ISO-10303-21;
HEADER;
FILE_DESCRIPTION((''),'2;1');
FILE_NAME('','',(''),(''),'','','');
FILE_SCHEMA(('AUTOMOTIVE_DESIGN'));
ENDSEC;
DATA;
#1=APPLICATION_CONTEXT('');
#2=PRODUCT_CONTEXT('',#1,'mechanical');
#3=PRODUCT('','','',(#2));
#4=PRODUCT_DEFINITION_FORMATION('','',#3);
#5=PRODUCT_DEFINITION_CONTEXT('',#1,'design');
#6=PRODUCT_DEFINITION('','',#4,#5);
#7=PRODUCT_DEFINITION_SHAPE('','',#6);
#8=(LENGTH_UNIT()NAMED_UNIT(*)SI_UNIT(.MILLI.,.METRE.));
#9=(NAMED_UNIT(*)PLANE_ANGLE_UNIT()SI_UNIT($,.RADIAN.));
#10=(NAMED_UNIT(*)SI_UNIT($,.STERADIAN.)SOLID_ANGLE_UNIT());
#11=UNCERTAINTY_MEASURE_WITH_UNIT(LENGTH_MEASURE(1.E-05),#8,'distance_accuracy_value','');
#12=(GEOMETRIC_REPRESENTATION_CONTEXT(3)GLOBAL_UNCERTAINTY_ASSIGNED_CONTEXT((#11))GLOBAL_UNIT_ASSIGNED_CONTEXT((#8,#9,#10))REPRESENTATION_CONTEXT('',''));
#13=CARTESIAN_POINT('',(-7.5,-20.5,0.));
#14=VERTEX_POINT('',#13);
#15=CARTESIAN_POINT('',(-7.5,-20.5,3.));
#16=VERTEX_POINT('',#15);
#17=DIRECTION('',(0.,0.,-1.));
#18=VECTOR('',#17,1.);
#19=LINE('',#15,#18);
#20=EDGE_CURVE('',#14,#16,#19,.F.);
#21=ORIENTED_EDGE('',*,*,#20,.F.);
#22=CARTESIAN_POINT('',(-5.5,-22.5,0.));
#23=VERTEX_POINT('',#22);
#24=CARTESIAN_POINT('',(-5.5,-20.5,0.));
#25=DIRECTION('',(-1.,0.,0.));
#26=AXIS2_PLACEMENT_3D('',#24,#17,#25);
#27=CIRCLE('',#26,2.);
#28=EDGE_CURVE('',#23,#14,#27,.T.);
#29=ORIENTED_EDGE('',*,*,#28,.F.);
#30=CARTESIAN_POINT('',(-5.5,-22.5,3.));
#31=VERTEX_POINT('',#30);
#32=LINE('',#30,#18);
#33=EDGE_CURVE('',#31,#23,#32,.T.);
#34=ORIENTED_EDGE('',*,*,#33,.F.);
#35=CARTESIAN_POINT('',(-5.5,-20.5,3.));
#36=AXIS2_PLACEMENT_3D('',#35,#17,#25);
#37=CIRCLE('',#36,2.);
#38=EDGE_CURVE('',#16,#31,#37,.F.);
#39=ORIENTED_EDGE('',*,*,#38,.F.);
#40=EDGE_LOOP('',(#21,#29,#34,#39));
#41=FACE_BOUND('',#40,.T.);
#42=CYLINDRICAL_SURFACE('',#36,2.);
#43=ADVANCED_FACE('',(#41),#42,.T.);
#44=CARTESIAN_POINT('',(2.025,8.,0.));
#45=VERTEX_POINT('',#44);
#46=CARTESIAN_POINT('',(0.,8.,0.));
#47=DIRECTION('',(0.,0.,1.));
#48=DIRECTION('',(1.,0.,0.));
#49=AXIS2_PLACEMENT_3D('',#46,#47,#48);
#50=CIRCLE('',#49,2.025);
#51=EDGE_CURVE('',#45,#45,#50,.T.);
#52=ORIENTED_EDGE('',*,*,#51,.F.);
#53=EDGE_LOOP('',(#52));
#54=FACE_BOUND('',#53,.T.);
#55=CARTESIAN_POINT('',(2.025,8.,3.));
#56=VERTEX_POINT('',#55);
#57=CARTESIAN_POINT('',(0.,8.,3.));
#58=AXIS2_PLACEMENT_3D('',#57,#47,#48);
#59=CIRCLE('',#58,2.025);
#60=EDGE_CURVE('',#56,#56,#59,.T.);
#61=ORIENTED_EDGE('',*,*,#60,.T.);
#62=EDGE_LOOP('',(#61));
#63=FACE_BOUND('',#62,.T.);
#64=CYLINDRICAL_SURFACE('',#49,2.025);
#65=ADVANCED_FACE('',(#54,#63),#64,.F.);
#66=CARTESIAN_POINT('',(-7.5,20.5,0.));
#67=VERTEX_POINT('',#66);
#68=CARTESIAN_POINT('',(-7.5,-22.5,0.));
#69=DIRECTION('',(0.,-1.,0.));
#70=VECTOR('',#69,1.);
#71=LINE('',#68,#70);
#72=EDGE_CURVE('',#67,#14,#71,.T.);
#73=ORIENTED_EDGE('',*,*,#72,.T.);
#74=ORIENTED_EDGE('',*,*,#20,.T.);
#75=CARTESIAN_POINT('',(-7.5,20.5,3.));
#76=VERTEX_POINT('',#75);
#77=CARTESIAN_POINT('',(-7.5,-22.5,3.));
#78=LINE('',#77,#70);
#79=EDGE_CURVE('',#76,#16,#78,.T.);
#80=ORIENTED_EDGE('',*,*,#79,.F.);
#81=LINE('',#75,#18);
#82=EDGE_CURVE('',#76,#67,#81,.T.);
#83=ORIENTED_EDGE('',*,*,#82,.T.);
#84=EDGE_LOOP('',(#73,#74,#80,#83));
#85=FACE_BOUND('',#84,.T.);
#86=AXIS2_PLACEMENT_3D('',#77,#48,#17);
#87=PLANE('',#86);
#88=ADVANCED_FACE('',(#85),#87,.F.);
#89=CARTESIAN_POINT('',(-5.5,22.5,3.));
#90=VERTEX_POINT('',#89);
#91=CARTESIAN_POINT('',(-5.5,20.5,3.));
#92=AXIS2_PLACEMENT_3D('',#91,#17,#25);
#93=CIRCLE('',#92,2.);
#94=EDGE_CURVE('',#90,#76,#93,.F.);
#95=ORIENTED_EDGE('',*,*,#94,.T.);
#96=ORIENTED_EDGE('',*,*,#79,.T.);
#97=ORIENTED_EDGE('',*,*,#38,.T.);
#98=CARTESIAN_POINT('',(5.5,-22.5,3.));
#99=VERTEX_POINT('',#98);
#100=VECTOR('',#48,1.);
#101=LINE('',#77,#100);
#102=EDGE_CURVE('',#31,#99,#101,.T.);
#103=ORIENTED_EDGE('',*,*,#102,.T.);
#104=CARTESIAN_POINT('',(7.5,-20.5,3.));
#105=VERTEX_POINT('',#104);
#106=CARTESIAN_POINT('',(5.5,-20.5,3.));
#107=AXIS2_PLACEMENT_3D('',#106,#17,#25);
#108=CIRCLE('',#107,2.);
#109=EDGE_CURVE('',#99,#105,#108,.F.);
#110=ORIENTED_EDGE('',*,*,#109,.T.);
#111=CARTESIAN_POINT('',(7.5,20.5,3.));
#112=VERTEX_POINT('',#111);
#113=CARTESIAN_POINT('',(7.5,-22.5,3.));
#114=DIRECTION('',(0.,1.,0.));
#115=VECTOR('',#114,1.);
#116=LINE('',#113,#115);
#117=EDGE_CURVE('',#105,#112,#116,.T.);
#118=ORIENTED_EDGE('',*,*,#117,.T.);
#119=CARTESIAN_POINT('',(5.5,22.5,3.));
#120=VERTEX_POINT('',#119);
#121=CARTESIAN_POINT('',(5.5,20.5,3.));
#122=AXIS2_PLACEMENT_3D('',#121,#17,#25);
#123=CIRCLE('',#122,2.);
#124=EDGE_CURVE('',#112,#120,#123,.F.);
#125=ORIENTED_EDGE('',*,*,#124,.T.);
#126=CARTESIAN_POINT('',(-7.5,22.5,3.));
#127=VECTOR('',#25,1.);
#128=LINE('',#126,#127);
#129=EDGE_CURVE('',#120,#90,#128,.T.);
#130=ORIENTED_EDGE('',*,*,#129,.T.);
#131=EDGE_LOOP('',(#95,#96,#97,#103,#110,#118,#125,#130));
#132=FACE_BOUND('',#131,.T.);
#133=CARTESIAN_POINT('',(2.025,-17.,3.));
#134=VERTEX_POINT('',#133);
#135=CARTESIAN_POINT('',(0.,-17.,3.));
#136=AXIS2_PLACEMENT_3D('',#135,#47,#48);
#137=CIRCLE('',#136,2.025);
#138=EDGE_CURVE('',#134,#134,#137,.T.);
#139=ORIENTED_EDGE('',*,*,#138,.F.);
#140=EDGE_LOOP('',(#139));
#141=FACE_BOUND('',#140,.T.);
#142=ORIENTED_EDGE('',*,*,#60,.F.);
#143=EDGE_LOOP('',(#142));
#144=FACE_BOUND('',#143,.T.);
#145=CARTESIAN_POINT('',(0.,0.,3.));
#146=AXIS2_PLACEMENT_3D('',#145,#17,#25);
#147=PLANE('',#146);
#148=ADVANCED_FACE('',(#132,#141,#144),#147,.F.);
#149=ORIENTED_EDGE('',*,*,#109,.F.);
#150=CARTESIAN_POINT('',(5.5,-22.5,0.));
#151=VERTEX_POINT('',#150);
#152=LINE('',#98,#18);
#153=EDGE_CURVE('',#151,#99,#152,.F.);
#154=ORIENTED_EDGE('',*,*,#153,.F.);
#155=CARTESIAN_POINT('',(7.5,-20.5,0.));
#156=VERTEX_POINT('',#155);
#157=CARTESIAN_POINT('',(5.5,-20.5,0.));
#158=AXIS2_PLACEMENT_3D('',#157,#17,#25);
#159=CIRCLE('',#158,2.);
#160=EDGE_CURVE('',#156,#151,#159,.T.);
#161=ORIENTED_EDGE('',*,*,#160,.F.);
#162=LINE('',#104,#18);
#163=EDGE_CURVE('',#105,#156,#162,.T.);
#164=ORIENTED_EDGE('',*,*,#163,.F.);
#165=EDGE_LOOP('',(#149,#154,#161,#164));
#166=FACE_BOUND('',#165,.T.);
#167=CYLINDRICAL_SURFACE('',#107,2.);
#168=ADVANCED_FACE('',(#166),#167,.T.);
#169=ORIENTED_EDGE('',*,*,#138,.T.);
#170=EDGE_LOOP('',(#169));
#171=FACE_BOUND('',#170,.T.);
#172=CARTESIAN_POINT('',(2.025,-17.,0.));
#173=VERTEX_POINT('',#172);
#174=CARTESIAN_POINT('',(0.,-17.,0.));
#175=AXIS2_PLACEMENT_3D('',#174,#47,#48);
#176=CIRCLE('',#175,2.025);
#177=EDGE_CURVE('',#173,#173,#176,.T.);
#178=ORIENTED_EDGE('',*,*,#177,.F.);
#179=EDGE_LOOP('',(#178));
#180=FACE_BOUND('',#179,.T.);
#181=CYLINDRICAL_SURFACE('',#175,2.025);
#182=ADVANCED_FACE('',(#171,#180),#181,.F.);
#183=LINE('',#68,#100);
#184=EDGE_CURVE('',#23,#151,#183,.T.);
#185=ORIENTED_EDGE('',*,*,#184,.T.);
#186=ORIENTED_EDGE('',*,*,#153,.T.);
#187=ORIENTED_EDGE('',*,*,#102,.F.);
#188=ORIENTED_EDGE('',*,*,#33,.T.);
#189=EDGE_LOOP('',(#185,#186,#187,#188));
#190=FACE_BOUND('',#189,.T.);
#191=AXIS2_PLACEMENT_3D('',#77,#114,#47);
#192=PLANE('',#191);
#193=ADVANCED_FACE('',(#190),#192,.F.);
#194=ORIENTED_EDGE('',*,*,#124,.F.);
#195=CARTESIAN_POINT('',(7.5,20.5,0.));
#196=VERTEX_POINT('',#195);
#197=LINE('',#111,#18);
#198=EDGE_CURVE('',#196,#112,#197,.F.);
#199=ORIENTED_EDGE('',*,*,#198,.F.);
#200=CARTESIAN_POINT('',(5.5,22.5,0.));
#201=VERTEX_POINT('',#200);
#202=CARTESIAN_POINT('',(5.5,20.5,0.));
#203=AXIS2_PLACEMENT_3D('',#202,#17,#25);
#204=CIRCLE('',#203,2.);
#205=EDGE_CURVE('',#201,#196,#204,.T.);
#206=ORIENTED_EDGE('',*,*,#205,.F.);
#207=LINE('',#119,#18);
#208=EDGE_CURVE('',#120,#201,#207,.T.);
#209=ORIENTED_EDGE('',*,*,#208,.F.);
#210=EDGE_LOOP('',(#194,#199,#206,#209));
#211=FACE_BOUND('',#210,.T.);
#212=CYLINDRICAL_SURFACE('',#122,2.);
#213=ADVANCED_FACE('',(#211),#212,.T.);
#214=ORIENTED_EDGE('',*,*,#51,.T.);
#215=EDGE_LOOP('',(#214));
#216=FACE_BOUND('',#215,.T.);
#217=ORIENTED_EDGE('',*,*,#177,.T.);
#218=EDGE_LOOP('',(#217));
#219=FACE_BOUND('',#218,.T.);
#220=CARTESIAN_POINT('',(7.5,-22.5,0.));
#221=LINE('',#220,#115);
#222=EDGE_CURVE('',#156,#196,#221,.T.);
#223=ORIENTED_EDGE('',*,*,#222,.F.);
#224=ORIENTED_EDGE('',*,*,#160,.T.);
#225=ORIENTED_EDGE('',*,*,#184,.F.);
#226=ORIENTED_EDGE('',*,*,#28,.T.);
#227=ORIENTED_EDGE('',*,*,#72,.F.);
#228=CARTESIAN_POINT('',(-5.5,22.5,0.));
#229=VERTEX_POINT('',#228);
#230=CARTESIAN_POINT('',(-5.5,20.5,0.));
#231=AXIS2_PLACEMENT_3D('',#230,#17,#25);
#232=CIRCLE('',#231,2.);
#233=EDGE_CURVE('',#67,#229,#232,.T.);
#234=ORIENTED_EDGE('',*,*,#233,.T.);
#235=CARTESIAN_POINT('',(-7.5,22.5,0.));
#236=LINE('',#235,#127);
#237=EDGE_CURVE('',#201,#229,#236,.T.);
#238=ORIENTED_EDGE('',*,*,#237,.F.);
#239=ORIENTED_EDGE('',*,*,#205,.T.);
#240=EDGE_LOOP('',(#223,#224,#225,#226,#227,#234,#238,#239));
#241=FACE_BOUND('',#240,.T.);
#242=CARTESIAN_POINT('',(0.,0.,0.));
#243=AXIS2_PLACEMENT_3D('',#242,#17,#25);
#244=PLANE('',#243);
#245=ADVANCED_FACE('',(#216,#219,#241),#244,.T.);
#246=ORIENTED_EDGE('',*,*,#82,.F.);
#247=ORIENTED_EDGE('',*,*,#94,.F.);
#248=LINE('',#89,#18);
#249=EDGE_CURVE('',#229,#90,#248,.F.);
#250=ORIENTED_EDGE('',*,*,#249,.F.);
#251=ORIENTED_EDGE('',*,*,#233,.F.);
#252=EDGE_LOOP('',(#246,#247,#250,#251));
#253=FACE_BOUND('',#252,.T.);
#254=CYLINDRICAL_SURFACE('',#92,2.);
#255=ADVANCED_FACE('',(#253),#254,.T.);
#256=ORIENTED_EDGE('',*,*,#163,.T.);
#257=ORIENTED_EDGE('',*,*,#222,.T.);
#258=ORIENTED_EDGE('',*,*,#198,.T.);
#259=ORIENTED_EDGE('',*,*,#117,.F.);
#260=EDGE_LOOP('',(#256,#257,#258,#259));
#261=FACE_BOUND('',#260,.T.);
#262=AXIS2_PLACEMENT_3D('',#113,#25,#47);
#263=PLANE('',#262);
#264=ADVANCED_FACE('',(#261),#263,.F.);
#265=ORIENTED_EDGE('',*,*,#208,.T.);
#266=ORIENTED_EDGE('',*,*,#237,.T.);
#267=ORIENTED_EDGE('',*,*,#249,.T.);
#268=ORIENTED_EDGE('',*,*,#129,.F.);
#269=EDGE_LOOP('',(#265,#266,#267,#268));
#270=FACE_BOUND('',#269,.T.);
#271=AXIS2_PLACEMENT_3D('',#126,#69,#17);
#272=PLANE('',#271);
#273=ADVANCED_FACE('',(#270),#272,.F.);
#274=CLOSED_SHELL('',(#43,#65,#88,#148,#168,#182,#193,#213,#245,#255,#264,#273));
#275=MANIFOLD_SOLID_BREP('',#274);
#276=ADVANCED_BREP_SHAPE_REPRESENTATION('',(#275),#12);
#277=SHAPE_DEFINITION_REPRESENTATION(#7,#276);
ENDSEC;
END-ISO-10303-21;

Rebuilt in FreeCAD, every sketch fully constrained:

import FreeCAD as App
import Part
import Sketcher
Q = App.Units.Quantity


def edges_at(feature, points):
    """Names of the edges that pass closest to the given points."""
    edges = feature.Shape.Edges
    near = lambda p: min(range(len(edges)), key=lambda i: edges[i].distToShape(Part.Vertex(*p))[0])
    return sorted({f"Edge{near(p) + 1}" for p in points})

doc = App.newDocument("Part")
body = doc.addObject("PartDesign::Body", "Body")

# Sketch on XY plane
sketch1 = doc.addObject("Sketcher::SketchObject", "Sketch")
body.addObject(sketch1)
sketch1.AttachmentSupport = (doc.XY_Plane, [""])
sketch1.MapMode = "FlatFace"
sketch1.addGeometry([
    Part.LineSegment(App.Vector(-8, 22, 0), App.Vector(-8, -22, 0)),
    Part.LineSegment(App.Vector(-8, -22, 0), App.Vector(8, -22, 0)),
    Part.LineSegment(App.Vector(8, -22, 0), App.Vector(8, 22, 0)),
    Part.LineSegment(App.Vector(8, 22, 0), App.Vector(-8, 22, 0)),
], False)
sketch1.addConstraint([
    Sketcher.Constraint("Coincident", 0, 2, 1, 1),
    Sketcher.Constraint("Coincident", 1, 2, 2, 1),
    Sketcher.Constraint("Coincident", 2, 2, 3, 1),
    Sketcher.Constraint("Coincident", 3, 2, 0, 1),
    Sketcher.Constraint("Vertical", 0),
    Sketcher.Constraint("Horizontal", 1),
    Sketcher.Constraint("Vertical", 2),
    Sketcher.Constraint("Horizontal", 3),
    Sketcher.Constraint("Symmetric", 0, 2, 2, 2, -1, 1),
    Sketcher.Constraint("DistanceX", 1, 1, 1, 2, Q("15 mm")),
    Sketcher.Constraint("DistanceY", 0, 2, 0, 1, Q("45 mm")),
])
pad1 = doc.addObject("PartDesign::Pad", "Pad")
body.addObject(pad1)
pad1.Profile = sketch1
pad1.Length = 3

# Sketch on XY plane
sketch2 = doc.addObject("Sketcher::SketchObject", "Sketch001")
body.addObject(sketch2)
sketch2.AttachmentSupport = (doc.XY_Plane, [""])
sketch2.MapMode = "FlatFace"
sketch2.AttachmentOffset = App.Placement(App.Vector(0, 0, 3), App.Rotation())
sketch2.addGeometry([
    Part.Circle(App.Vector(0, -17, 0), App.Vector(0, 0, 1), 2),
    Part.Circle(App.Vector(0, 8, 0), App.Vector(0, 0, 1), 2),
], False)
sketch2.addConstraint([
    Sketcher.Constraint("Equal", 0, 1),
    Sketcher.Constraint("PointOnObject", 0, 3, -2),
    Sketcher.Constraint("PointOnObject", 1, 3, -2),
    Sketcher.Constraint("Diameter", 0, Q("4.05 mm")),
    Sketcher.Constraint("DistanceY", 0, 3, -1, 1, Q("17 mm")),
    Sketcher.Constraint("DistanceY", -1, 1, 1, 3, Q("8 mm")),
])
pocket1 = doc.addObject("PartDesign::Pocket", "Pocket")
body.addObject(pocket1)
pocket1.Profile = sketch2
pocket1.Length = 3
doc.recompute()

fillet = doc.addObject("PartDesign::Fillet", "Fillet")
body.addObject(fillet)
fillet.Base = (pocket1, edges_at(pocket1, [
    (7.5, -22.5, 1.5),
    (-7.5, -22.5, 1.5),
    (-7.5, 22.5, 1.5),
    (7.5, 22.5, 1.5),
]))
fillet.Radius = 2

doc.recompute()
